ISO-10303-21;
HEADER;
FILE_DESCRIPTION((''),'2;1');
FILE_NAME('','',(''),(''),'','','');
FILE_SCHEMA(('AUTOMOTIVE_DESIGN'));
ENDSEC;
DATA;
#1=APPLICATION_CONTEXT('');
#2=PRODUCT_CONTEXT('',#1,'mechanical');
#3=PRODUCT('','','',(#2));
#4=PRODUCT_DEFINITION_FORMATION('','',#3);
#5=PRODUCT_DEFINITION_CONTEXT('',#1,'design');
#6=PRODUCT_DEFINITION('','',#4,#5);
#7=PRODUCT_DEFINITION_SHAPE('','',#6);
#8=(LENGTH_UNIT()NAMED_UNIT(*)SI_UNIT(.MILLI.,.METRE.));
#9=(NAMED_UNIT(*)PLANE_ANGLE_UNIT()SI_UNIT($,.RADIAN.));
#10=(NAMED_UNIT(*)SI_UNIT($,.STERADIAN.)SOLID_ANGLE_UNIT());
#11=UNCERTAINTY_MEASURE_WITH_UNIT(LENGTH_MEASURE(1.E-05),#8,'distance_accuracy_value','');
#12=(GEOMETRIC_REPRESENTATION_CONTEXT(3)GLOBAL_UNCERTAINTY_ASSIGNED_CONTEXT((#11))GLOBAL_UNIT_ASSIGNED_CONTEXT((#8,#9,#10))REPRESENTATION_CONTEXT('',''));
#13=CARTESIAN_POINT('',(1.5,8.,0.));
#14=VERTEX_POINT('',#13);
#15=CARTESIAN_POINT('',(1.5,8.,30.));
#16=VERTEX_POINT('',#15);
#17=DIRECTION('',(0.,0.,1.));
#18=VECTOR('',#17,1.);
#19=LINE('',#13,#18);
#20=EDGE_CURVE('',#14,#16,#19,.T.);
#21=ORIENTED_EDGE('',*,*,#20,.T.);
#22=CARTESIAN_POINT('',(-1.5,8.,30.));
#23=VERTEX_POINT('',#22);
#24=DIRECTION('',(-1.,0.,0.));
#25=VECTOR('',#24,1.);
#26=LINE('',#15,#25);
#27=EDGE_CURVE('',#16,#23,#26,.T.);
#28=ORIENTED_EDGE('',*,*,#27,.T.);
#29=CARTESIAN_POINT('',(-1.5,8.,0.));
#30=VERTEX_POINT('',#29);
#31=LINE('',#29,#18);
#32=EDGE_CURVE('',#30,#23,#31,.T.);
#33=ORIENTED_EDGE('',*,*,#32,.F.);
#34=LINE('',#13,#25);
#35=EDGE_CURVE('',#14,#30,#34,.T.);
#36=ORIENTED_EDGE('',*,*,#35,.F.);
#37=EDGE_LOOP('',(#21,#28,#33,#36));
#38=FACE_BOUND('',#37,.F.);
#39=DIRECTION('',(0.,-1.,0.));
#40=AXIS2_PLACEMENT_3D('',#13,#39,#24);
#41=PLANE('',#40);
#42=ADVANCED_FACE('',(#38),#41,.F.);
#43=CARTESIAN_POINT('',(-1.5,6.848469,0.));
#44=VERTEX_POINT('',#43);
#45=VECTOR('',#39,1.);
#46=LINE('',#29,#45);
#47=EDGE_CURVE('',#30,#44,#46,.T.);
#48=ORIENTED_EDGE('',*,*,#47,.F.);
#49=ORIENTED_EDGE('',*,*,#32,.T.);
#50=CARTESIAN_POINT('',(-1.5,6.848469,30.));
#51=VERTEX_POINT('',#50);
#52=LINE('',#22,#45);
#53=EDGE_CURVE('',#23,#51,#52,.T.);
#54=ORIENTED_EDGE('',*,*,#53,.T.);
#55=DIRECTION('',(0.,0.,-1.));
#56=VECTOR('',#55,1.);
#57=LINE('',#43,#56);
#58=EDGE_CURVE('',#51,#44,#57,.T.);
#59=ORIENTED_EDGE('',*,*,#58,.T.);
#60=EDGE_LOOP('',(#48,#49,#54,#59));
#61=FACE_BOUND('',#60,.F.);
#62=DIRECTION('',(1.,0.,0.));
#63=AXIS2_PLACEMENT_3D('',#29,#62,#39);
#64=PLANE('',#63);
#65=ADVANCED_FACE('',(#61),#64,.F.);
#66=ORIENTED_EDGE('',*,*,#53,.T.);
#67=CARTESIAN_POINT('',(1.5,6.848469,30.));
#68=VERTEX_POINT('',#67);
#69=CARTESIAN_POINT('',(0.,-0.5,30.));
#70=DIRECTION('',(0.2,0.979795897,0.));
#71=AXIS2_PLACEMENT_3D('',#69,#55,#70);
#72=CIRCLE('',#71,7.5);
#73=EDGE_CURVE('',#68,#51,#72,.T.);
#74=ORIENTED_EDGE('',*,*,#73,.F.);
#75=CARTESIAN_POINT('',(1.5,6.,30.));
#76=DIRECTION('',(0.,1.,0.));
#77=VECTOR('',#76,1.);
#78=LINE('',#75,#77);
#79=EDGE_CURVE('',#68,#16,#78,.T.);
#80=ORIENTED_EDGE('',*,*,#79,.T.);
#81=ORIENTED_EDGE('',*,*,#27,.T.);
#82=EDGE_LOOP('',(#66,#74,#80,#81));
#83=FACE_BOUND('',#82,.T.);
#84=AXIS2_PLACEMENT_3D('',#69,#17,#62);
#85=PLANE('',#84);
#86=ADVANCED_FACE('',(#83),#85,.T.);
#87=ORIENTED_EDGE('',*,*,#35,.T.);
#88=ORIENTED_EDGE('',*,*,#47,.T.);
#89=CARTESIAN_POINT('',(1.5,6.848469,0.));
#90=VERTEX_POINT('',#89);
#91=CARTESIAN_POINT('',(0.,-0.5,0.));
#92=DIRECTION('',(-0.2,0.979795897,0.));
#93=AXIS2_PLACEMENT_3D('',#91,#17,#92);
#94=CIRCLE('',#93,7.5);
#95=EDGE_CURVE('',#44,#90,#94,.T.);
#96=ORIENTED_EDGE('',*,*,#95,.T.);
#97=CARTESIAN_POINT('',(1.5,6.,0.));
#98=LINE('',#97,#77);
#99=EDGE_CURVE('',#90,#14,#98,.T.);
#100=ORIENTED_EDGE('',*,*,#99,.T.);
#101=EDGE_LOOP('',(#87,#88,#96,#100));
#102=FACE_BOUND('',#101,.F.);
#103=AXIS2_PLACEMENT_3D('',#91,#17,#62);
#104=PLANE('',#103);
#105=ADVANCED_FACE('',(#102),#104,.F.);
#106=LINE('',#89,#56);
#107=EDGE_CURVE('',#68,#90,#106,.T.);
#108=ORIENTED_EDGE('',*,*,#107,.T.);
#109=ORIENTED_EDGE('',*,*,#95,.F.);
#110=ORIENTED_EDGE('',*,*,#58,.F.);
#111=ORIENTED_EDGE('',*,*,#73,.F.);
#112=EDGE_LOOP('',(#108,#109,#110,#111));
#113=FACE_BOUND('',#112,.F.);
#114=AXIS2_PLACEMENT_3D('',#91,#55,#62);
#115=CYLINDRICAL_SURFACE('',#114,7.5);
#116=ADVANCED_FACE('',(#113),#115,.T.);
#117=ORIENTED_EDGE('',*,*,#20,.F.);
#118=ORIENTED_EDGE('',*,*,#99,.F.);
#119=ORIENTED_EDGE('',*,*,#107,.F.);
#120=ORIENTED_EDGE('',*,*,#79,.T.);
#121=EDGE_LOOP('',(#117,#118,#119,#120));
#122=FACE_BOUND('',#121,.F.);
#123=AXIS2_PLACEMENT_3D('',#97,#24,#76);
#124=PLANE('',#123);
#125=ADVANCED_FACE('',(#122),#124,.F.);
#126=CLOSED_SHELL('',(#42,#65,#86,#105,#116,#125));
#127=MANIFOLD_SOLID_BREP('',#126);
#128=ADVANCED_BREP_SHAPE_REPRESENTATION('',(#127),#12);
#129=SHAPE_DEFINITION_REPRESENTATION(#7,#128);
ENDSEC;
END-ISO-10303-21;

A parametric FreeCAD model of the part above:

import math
import FreeCAD as App
import Part
import Sketcher

doc = App.newDocument("Part")
body = doc.addObject("PartDesign::Body", "Body")

# Sketch on XY plane
sketch1 = doc.addObject("Sketcher::SketchObject", "Sketch")
body.addObject(sketch1)
sketch1.AttachmentSupport = (doc.XY_Plane, [""])
sketch1.MapMode = "FlatFace"
sketch1.addGeometry([
    Part.ArcOfCircle(Part.Circle(App.Vector(0, -0.5, 0), App.Vector(0, 0, 1), 7.5), math.radians(102), math.radians(438)),
    Part.LineSegment(App.Vector(1.5, 6.8, 0), App.Vector(1.5, 8, 0)),
    Part.LineSegment(App.Vector(1.5, 8, 0), App.Vector(-1.5, 8, 0)),
    Part.LineSegment(App.Vector(-1.5, 8, 0), App.Vector(-1.5, 6.8, 0)),
], False)
sketch1.addConstraint([
    Sketcher.Constraint("Coincident", 0, 2, 1, 1),
    Sketcher.Constraint("Coincident", 1, 2, 2, 1),
    Sketcher.Constraint("Coincident", 2, 2, 3, 1),
    Sketcher.Constraint("Coincident", 3, 2, 0, 1),
    Sketcher.Constraint("Vertical", 1),
    Sketcher.Constraint("Horizontal", 2),
    Sketcher.Constraint("Vertical", 3),
    Sketcher.Constraint("Symmetric", 0, 2, 3, 2, -2),
    Sketcher.Constraint("Radius", 0, 7.5),
    Sketcher.Constraint("DistanceX", 2, 2, 2, 1, 3.0),
    Sketcher.Constraint("DistanceY", -1, 1, 1, 2, 8.0),
    Sketcher.Constraint("DistanceY", 0, 3, -1, 1, 0.5),
])
pad1 = doc.addObject("PartDesign::Pad", "Pad")
body.addObject(pad1)
pad1.Profile = sketch1
pad1.Length = 30

doc.recompute()
